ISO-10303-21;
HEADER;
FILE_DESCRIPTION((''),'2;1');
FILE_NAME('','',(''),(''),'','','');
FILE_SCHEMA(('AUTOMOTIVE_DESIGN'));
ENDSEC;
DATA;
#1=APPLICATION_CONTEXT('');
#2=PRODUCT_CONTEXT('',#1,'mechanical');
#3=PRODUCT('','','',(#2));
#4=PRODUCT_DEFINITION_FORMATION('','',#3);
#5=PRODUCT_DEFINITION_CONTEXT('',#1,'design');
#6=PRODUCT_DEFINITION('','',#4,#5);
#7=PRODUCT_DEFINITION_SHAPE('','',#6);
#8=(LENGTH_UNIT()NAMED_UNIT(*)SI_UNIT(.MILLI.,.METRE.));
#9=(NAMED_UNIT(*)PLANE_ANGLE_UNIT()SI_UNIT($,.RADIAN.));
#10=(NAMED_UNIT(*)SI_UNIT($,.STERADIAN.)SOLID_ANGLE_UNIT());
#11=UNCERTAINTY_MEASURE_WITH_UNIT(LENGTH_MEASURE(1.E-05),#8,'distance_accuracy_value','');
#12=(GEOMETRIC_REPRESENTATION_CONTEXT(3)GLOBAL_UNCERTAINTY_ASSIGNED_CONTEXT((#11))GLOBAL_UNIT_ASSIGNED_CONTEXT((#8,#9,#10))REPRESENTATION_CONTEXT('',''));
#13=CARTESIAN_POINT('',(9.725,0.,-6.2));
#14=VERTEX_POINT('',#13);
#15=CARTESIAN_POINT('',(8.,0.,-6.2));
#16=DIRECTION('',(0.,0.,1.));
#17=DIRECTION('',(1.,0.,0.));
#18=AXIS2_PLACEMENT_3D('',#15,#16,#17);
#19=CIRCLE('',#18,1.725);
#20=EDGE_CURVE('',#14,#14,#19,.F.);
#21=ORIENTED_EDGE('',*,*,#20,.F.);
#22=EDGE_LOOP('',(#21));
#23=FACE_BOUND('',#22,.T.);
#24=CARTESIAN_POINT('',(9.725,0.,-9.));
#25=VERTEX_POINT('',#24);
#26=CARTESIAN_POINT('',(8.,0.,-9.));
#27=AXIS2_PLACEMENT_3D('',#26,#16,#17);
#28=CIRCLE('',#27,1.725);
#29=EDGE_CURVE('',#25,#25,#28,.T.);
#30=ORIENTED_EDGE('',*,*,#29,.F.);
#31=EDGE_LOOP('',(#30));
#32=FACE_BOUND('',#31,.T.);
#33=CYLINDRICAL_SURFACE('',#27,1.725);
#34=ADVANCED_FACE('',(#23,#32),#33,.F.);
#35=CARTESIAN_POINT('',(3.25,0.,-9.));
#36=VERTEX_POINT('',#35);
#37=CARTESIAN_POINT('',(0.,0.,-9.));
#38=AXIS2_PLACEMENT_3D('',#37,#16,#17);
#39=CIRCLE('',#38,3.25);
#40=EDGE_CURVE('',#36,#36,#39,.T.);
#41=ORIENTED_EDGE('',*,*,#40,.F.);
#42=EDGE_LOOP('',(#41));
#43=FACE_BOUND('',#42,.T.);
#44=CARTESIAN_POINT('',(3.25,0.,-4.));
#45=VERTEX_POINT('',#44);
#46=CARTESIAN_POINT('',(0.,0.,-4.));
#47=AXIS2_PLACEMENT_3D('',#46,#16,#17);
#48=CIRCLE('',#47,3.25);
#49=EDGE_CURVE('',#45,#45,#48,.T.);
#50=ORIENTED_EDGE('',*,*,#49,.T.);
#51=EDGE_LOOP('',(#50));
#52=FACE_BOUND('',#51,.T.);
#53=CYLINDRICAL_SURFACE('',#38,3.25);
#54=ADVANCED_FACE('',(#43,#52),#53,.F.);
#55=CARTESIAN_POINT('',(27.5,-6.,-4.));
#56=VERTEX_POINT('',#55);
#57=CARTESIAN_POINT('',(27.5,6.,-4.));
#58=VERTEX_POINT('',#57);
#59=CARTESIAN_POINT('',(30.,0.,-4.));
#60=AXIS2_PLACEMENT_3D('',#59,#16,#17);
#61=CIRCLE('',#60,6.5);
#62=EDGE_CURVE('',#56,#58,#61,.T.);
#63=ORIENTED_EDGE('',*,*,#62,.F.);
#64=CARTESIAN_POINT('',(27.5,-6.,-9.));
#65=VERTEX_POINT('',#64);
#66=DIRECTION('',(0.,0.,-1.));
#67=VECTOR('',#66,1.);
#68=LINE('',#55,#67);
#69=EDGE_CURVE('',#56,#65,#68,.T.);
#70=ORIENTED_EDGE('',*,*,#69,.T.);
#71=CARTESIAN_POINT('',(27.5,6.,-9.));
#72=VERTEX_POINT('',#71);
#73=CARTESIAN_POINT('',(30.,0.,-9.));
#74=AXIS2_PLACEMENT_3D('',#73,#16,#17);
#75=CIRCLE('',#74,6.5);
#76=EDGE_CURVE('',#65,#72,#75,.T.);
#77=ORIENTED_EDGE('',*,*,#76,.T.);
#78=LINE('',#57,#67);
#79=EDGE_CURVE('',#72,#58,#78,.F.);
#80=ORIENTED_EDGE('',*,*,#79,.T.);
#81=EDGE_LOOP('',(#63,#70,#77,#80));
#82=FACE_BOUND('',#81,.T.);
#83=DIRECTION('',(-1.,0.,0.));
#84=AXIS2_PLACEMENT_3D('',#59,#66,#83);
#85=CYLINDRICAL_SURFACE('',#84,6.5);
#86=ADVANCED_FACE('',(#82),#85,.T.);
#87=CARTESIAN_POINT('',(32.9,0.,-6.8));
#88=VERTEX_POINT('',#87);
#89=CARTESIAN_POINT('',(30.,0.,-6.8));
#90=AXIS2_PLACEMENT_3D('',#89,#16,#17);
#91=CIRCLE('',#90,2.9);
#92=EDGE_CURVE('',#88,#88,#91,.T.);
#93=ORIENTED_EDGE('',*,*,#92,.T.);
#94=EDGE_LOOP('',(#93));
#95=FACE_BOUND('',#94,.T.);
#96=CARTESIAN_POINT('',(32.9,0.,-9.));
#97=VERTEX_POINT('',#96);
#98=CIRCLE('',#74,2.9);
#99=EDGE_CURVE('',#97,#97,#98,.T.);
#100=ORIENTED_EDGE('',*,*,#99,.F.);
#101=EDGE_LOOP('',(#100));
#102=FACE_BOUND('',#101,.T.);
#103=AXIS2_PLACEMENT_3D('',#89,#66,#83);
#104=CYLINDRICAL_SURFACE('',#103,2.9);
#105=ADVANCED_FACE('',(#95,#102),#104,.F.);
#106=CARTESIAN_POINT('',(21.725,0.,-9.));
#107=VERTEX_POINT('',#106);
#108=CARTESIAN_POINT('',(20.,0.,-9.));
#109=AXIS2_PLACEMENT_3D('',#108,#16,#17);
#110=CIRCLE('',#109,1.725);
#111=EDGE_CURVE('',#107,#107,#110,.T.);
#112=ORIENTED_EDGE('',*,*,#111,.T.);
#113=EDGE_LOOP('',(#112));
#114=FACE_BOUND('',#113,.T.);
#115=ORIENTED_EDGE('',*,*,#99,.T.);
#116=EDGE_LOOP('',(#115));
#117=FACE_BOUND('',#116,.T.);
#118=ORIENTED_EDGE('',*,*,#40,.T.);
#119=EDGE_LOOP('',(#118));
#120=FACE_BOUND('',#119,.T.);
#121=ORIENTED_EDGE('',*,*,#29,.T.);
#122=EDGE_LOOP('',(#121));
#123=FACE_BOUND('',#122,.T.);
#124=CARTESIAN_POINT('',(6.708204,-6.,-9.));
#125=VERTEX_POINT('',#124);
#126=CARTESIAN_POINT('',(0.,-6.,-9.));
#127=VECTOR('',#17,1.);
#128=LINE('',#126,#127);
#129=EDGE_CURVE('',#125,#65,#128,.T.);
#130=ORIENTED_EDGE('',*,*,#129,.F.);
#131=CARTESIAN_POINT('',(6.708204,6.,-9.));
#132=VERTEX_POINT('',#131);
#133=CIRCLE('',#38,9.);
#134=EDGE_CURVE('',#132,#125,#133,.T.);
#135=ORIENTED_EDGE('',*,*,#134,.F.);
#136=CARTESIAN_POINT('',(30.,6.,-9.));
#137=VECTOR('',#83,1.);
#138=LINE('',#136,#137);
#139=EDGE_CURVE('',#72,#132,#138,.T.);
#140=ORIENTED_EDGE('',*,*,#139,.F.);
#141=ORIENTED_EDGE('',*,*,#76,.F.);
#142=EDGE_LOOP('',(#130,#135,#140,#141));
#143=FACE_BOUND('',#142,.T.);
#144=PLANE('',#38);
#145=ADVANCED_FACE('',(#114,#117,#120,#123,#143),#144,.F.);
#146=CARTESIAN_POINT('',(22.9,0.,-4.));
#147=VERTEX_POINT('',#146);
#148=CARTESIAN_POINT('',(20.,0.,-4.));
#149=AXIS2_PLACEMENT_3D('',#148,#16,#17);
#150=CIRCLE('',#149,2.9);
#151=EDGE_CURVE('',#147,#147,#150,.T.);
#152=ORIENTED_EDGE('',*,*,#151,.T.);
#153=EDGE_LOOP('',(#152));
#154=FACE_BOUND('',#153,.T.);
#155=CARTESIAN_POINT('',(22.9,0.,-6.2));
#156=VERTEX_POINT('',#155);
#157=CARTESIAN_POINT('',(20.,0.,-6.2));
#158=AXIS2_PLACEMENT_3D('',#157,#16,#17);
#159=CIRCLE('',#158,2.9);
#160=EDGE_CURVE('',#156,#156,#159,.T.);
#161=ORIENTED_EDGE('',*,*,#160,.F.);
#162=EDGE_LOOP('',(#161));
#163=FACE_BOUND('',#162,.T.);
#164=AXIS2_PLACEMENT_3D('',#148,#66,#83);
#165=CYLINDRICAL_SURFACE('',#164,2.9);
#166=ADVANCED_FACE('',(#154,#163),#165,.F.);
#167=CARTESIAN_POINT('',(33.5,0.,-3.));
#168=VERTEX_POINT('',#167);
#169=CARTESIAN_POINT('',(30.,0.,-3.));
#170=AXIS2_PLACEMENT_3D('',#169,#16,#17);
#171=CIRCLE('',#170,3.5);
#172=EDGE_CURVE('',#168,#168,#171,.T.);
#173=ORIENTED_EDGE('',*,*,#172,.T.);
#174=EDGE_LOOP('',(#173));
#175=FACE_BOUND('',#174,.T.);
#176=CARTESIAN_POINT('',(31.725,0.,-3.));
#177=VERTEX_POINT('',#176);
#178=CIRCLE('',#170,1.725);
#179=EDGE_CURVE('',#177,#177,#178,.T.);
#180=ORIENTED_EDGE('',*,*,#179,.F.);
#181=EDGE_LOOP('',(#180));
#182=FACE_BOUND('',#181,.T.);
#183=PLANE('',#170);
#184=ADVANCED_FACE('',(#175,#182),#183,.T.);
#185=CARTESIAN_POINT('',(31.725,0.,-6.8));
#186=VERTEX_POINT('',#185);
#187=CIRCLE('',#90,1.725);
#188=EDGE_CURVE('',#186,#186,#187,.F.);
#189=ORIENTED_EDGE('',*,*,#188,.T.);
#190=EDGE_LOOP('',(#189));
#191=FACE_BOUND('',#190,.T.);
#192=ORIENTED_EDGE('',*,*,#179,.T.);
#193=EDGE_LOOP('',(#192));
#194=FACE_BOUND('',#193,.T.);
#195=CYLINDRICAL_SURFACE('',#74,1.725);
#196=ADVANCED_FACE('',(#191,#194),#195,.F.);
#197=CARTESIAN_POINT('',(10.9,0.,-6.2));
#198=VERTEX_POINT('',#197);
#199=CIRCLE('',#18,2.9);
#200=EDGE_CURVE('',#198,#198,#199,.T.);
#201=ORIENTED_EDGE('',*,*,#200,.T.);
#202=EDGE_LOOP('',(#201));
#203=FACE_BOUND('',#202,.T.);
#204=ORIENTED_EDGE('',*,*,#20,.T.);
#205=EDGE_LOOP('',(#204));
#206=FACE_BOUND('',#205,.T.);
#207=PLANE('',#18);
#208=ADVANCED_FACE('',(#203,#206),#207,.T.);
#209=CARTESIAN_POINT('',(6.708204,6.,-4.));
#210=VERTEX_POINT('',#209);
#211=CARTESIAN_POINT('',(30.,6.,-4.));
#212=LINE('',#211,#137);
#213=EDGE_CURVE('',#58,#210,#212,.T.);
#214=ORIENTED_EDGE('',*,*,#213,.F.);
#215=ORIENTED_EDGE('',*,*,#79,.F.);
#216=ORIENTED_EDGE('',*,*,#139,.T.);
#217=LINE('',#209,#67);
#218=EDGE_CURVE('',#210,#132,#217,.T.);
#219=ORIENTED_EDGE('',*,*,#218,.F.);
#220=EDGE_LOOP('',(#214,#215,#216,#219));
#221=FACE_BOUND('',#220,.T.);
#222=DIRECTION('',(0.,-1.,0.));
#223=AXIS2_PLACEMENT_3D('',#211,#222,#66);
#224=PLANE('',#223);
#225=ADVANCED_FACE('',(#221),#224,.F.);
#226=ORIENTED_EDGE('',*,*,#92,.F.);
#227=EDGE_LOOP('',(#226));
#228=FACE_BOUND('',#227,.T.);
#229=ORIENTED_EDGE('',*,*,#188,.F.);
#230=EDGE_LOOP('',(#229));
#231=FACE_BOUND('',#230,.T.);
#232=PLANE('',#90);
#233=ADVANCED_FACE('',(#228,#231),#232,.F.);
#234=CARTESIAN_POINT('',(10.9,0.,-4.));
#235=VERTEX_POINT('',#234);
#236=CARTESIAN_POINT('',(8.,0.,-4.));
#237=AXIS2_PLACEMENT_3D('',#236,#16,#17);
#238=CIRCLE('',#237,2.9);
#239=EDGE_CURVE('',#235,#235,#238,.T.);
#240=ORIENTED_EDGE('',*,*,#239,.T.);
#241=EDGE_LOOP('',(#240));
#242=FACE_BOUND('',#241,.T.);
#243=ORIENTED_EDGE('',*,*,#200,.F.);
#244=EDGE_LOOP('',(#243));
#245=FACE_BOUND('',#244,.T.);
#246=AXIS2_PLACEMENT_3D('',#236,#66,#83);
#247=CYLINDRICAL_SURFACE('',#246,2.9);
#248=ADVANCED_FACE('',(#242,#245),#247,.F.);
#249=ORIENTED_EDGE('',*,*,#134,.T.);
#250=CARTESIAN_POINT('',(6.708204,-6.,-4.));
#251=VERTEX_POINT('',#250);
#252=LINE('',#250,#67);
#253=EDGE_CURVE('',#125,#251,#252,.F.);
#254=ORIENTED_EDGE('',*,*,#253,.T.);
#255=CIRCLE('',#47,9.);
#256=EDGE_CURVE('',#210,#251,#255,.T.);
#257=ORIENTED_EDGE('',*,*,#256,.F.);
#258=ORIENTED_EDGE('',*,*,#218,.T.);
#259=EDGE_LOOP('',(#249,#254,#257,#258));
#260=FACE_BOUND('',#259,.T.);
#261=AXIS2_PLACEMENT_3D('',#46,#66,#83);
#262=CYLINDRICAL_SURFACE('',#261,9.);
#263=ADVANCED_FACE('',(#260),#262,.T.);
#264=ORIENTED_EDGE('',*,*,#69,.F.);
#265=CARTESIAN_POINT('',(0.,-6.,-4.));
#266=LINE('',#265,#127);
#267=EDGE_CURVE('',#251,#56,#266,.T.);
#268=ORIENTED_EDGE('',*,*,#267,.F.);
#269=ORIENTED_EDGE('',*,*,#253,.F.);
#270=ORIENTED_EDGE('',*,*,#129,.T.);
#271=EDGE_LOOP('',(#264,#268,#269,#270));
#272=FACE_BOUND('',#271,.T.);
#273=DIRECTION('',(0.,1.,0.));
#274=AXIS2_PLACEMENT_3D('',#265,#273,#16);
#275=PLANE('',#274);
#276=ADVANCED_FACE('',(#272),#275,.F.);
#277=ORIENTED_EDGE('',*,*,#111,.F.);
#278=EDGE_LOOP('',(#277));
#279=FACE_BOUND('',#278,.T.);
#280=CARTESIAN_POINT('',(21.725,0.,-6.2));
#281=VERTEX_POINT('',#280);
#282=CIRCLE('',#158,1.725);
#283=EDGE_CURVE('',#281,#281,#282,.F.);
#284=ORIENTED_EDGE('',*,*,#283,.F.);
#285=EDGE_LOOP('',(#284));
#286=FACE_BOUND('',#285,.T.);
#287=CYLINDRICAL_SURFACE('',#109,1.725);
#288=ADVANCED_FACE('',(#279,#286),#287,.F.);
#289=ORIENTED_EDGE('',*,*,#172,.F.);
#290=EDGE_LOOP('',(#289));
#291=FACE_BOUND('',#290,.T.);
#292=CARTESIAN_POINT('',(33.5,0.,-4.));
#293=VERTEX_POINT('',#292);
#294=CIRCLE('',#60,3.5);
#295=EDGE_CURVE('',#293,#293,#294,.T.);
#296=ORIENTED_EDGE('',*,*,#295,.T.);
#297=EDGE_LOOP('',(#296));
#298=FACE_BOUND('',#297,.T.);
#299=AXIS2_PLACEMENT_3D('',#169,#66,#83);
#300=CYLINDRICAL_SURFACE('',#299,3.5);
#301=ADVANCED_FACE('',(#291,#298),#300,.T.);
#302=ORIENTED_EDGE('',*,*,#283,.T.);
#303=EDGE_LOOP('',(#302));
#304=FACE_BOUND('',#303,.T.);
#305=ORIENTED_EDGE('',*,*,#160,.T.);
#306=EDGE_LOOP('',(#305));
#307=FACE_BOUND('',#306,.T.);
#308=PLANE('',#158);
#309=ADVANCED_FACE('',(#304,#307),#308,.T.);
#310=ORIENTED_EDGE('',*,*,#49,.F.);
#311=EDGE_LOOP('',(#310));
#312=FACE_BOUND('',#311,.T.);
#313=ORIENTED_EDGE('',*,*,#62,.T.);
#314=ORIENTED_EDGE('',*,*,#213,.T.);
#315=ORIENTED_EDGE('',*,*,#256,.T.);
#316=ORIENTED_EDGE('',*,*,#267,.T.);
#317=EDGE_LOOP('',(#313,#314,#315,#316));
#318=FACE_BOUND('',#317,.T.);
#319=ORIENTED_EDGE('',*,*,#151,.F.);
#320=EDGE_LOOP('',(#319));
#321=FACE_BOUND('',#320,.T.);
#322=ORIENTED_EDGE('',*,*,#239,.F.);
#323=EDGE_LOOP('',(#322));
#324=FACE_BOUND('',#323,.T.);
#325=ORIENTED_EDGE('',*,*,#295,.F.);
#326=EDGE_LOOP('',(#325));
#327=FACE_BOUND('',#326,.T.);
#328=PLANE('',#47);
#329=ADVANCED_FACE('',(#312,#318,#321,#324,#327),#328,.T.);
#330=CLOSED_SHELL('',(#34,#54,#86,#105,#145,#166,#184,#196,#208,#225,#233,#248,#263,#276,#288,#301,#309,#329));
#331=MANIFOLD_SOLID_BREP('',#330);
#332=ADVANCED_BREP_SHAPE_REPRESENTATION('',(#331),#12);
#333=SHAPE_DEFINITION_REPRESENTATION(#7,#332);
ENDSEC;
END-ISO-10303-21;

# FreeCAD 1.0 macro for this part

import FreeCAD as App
import Part
import Sketcher

V = App.Vector
Q = App.Units.Quantity

doc = App.newDocument("Part")
body = doc.addObject("PartDesign::Body", "Body")

# Sketch on XY plane
sketch1 = body.newObject("Sketcher::SketchObject", "Sketch")
sketch1.AttachmentSupport = (doc.getObject("XY_Plane"), [""])
sketch1.MapMode = "FlatFace"
sketch1.AttachmentOffset = App.Placement(V(0, 0, -9), App.Rotation())
sketch1.addGeometry([
    Part.LineSegment(V(0, 6, 0), V(0, -6, 0)),
    Part.LineSegment(V(0, -6, 0), V(30, -6, 0)),
    Part.LineSegment(V(30, -6, 0), V(30, 6, 0)),
    Part.LineSegment(V(30, 6, 0), V(0, 6, 0)),
], False)
sketch1.addConstraint([
    Sketcher.Constraint("Coincident", 0, 2, 1, 1),
    Sketcher.Constraint("Coincident", 1, 2, 2, 1),
    Sketcher.Constraint("Coincident", 2, 2, 3, 1),
    Sketcher.Constraint("Coincident", 3, 2, 0, 1),
    Sketcher.Constraint("Vertical", 0),
    Sketcher.Constraint("Horizontal", 1),
    Sketcher.Constraint("Vertical", 2),
    Sketcher.Constraint("Horizontal", 3),
    Sketcher.Constraint("Symmetric", 0, 2, 3, 2, -1, 1),
    Sketcher.Constraint("DistanceX", 1, 1, 1, 2, Q("30 mm")),
    Sketcher.Constraint("DistanceY", 0, 2, 0, 1, Q("12 mm")),
])
pad1 = body.newObject("PartDesign::Pad", "Pad")
pad1.Profile = sketch1
pad1.Length = 5

# Sketch on XY plane
sketch2 = body.newObject("Sketcher::SketchObject", "Sketch001")
sketch2.AttachmentSupport = (doc.getObject("XY_Plane"), [""])
sketch2.MapMode = "FlatFace"
sketch2.AttachmentOffset = App.Placement(V(0, 0, -9), App.Rotation())
sketch2.addGeometry(Part.Circle(V(0, 0, 0), V(0, 0, 1), 9), False)
sketch2.addConstraint([
    Sketcher.Constraint("Coincident", 0, 3, -1, 1),
    Sketcher.Constraint("Diameter", 0, Q("18 mm")),
])
pad2 = body.newObject("PartDesign::Pad", "Pad001")
pad2.Profile = sketch2
pad2.Length = 5

# Sketch on XY plane
sketch3 = body.newObject("Sketcher::SketchObject", "Sketch002")
sketch3.AttachmentSupport = (doc.getObject("XY_Plane"), [""])
sketch3.MapMode = "FlatFace"
sketch3.AttachmentOffset = App.Placement(V(0, 0, -9), App.Rotation())
sketch3.addGeometry(Part.Circle(V(30, 0, 0), V(0, 0, 1), 6), False)
sketch3.addConstraint([
    Sketcher.Constraint("PointOnObject", 0, 3, -1),
    Sketcher.Constraint("Diameter", 0, Q("13 mm")),
    Sketcher.Constraint("DistanceX", -1, 1, 0, 3, Q("30 mm")),
])
pad3 = body.newObject("PartDesign::Pad", "Pad002")
pad3.Profile = sketch3
pad3.Length = 5

# Sketch on XY plane
sketch4 = body.newObject("Sketcher::SketchObject", "Sketch003")
sketch4.AttachmentSupport = (doc.getObject("XY_Plane"), [""])
sketch4.MapMode = "FlatFace"
sketch4.addGeometry(Part.Circle(V(0, 0, 0), V(0, 0, 1), 3.2), False)
sketch4.addConstraint([
    Sketcher.Constraint("Coincident", 0, 3, -1, 1),
    Sketcher.Constraint("Diameter", 0, Q("6.5 mm")),
])
pocket1 = body.newObject("PartDesign::Pocket", "Pocket")
pocket1.Profile = sketch4
pocket1.Type = "ThroughAll"
pocket1.Midplane = True

# Sketch on XY plane
sketch5 = body.newObject("Sketcher::SketchObject", "Sketch004")
sketch5.AttachmentSupport = (doc.getObject("XY_Plane"), [""])
sketch5.MapMode = "FlatFace"
sketch5.addGeometry([
    Part.Circle(V(8, 0, 0), V(0, 0, 1), 1.7),
    Part.Circle(V(20, 0, 0), V(0, 0, 1), 1.7),
    Part.Circle(V(30, 0, 0), V(0, 0, 1), 1.7),
], False)
sketch5.addConstraint([
    Sketcher.Constraint("Equal", 0, 1),
    Sketcher.Constraint("Equal", 1, 2),
    Sketcher.Constraint("PointOnObject", 0, 3, -1),
    Sketcher.Constraint("PointOnObject", 1, 3, -1),
    Sketcher.Constraint("PointOnObject", 2, 3, -1),
    Sketcher.Constraint("Diameter", 0, Q("3.45 mm")),
    Sketcher.Constraint("DistanceX", -1, 1, 0, 3, Q("8 mm")),
    Sketcher.Constraint("DistanceX", -1, 1, 1, 3, Q("20 mm")),
    Sketcher.Constraint("DistanceX", -1, 1, 2, 3, Q("30 mm")),
])
pocket2 = body.newObject("PartDesign::Pocket", "Pocket001")
pocket2.Profile = sketch5
pocket2.Type = "ThroughAll"
pocket2.Midplane = True

# Sketch on XY plane
sketch6 = body.newObject("Sketcher::SketchObject", "Sketch005")
sketch6.AttachmentSupport = (doc.getObject("XY_Plane"), [""])
sketch6.MapMode = "FlatFace"
sketch6.AttachmentOffset = App.Placement(V(0, 0, -6.2), App.Rotation())
sketch6.addGeometry(Part.Circle(V(8, 0, 0), V(0, 0, 1), 2.9), False)
sketch6.addConstraint([
    Sketcher.Constraint("PointOnObject", 0, 3, -1),
    Sketcher.Constraint("Diameter", 0, Q("5.8 mm")),
    Sketcher.Constraint("DistanceX", -1, 1, 0, 3, Q("8 mm")),
])
pocket3 = body.newObject("PartDesign::Pocket", "Pocket002")
pocket3.Profile = sketch6
pocket3.Length = 2.2
pocket3.Reversed = True

# Sketch on XY plane
sketch7 = body.newObject("Sketcher::SketchObject", "Sketch006")
sketch7.AttachmentSupport = (doc.getObject("XY_Plane"), [""])
sketch7.MapMode = "FlatFace"
sketch7.AttachmentOffset = App.Placement(V(0, 0, -6.2), App.Rotation())
sketch7.addGeometry(Part.Circle(V(20, 0, 0), V(0, 0, 1), 2.9), False)
sketch7.addConstraint([
    Sketcher.Constraint("PointOnObject", 0, 3, -1),
    Sketcher.Constraint("Diameter", 0, Q("5.8 mm")),
    Sketcher.Constraint("DistanceX", -1, 1, 0, 3, Q("20 mm")),
])
pocket4 = body.newObject("PartDesign::Pocket", "Pocket003")
pocket4.Profile = sketch7
pocket4.Length = 2.2
pocket4.Reversed = True

# Sketch on XY plane
sketch8 = body.newObject("Sketcher::SketchObject", "Sketch007")
sketch8.AttachmentSupport = (doc.getObject("XY_Plane"), [""])
sketch8.MapMode = "FlatFace"
sketch8.AttachmentOffset = App.Placement(V(0, 0, -9), App.Rotation())
sketch8.addGeometry(Part.Circle(V(30, 0, 0), V(0, 0, 1), 2.9), False)
sketch8.addConstraint([
    Sketcher.Constraint("PointOnObject", 0, 3, -1),
    Sketcher.Constraint("Diameter", 0, Q("5.8 mm")),
    Sketcher.Constraint("DistanceX", -1, 1, 0, 3, Q("30 mm")),
])
pocket5 = body.newObject("PartDesign::Pocket", "Pocket004")
pocket5.Profile = sketch8
pocket5.Length = 2.2
pocket5.Reversed = True

# Sketch on XY plane
sketch9 = body.newObject("Sketcher::SketchObject", "Sketch008")
sketch9.AttachmentSupport = (doc.getObject("XY_Plane"), [""])
sketch9.MapMode = "FlatFace"
sketch9.AttachmentOffset = App.Placement(V(0, 0, -4), App.Rotation())
sketch9.addGeometry(Part.Circle(V(30, 0, 0), V(0, 0, 1), 3.5), False)
sketch9.addConstraint([
    Sketcher.Constraint("PointOnObject", 0, 3, -1),
    Sketcher.Constraint("Diameter", 0, Q("7 mm")),
    Sketcher.Constraint("DistanceX", -1, 1, 0, 3, Q("30 mm")),
])
pad4 = body.newObject("PartDesign::Pad", "Pad003")
pad4.Profile = sketch9
pad4.Length = 1

# Sketch on XY plane
sketch10 = body.newObject("Sketcher::SketchObject", "Sketch009")
sketch10.AttachmentSupport = (doc.getObject("XY_Plane"), [""])
sketch10.MapMode = "FlatFace"
sketch10.addGeometry(Part.Circle(V(30, 0, 0), V(0, 0, 1), 1.7), False)
sketch10.addConstraint([
    Sketcher.Constraint("PointOnObject", 0, 3, -1),
    Sketcher.Constraint("Diameter", 0, Q("3.45 mm")),
    Sketcher.Constraint("DistanceX", -1, 1, 0, 3, Q("30 mm")),
])
pocket6 = body.newObject("PartDesign::Pocket", "Pocket005")
pocket6.Profile = sketch10
pocket6.Type = "ThroughAll"
pocket6.Midplane = True

doc.recompute()
